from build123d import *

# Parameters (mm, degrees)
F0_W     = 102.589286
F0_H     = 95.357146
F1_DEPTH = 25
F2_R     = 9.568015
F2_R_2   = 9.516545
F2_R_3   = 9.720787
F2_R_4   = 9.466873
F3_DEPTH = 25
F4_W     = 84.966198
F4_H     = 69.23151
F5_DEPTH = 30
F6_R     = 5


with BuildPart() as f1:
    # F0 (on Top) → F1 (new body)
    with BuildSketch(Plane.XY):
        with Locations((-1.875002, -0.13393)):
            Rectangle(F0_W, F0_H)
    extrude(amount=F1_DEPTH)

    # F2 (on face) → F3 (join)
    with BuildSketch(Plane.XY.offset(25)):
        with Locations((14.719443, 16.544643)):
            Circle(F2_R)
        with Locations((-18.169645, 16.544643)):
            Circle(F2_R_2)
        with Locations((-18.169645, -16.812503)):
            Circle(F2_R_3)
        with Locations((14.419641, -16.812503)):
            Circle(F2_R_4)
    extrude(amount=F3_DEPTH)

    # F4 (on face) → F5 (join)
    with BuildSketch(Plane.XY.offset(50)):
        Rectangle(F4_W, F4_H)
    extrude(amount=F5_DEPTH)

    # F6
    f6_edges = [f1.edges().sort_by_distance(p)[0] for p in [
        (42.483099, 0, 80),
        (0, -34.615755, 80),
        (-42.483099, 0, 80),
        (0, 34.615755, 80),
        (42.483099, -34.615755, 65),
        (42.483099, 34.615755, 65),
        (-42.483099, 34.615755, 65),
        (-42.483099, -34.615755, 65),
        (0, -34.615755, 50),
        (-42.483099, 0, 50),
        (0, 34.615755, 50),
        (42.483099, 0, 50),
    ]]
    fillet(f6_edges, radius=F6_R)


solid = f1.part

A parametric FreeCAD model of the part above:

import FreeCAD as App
import Part
import Sketcher

V = App.Vector
Q = App.Units.Quantity


def edges_at(feature, points):
    """Names of the edges that pass closest to the given points."""
    edges = feature.Shape.Edges
    near = lambda p: min(range(len(edges)), key=lambda i: edges[i].distToShape(Part.Vertex(*p))[0])
    return sorted({f"Edge{near(p) + 1}" for p in points})

doc = App.newDocument("Part")
params = doc.addObject("Spreadsheet::Sheet", "Params")
for row, (alias, value) in enumerate([
    ("pad1_length", "25 mm"),
    ("pad2_length", "25 mm"),
    ("pad3_length", "30 mm"),
    ("fillet_radius", "5 mm"),
], start=1):
    params.set(f"A{row}", alias)
    params.set(f"B{row}", "=" + value)
    params.setAlias(f"B{row}", alias)

body = doc.addObject("PartDesign::Body", "Body")

# Sketch on XY plane
sketch1 = body.newObject("Sketcher::SketchObject", "Sketch")
sketch1.AttachmentSupport = (doc.getObject("XY_Plane"), [""])
sketch1.MapMode = "FlatFace"
sketch1.addGeometry([
    Part.LineSegment(V(-53, 48, 0), V(-53, -48, 0)),
    Part.LineSegment(V(-53, -48, 0), V(49, -48, 0)),
    Part.LineSegment(V(49, -48, 0), V(49, 48, 0)),
    Part.LineSegment(V(49, 48, 0), V(-53, 48, 0)),
], False)
sketch1.addConstraint([
    Sketcher.Constraint("Coincident", 0, 2, 1, 1),
    Sketcher.Constraint("Coincident", 1, 2, 2, 1),
    Sketcher.Constraint("Coincident", 2, 2, 3, 1),
    Sketcher.Constraint("Coincident", 3, 2, 0, 1),
    Sketcher.Constraint("Vertical", 0),
    Sketcher.Constraint("Horizontal", 1),
    Sketcher.Constraint("Vertical", 2),
    Sketcher.Constraint("Horizontal", 3),
    Sketcher.Constraint("DistanceX", 1, 1, 1, 2, Q("102.589286 mm")),
    Sketcher.Constraint("DistanceY", 0, 2, 0, 1, Q("95.357146 mm")),
    Sketcher.Constraint("DistanceX", -1, 1, 1, 2, Q("49.419641 mm")),
    Sketcher.Constraint("DistanceY", 0, 2, -1, 1, Q("47.812503 mm")),
])
pad1 = body.newObject("PartDesign::Pad", "Pad")
pad1.Profile = sketch1
pad1.setExpression("Length", "Params.pad1_length")

# Sketch on XY plane
sketch2 = body.newObject("Sketcher::SketchObject", "Sketch001")
sketch2.AttachmentSupport = (doc.getObject("XY_Plane"), [""])
sketch2.MapMode = "FlatFace"
sketch2.AttachmentOffset = App.Placement(V(0, 0, 25), App.Rotation())
sketch2.addGeometry([
    Part.Circle(V(15, 17, 0), V(0, 0, 1), 10),
    Part.Circle(V(-18, 17, 0), V(0, 0, 1), 10),
    Part.Circle(V(-18, -17, 0), V(0, 0, 1), 10),
    Part.Circle(V(14, -17, 0), V(0, 0, 1), 9),
], False)
sketch2.addConstraint([
    Sketcher.Constraint("Horizontal", 0, 3, 1, 3),
    Sketcher.Constraint("Horizontal", 2, 3, 3, 3),
    Sketcher.Constraint("Vertical", 1, 3, 2, 3),
    Sketcher.Constraint("Diameter", 0, Q("19.13603 mm")),
    Sketcher.Constraint("Diameter", 1, Q("19.03309 mm")),
    Sketcher.Constraint("Diameter", 2, Q("19.441574 mm")),
    Sketcher.Constraint("Diameter", 3, Q("18.933746 mm")),
    Sketcher.Constraint("DistanceX", 3, 3, 0, 3, Q("0.299802 mm")),
    Sketcher.Constraint("DistanceX", -1, 1, 3, 3, Q("14.419641 mm")),
    Sketcher.Constraint("DistanceY", -1, 1, 0, 3, Q("16.544643 mm")),
    Sketcher.Constraint("DistanceX", 1, 3, -1, 1, Q("18.169645 mm")),
    Sketcher.Constraint("DistanceY", 2, 3, -1, 1, Q("16.812503 mm")),
])
pad2 = body.newObject("PartDesign::Pad", "Pad001")
pad2.Profile = sketch2
pad2.setExpression("Length", "Params.pad2_length")

# Sketch on XY plane
sketch3 = body.newObject("Sketcher::SketchObject", "Sketch002")
sketch3.AttachmentSupport = (doc.getObject("XY_Plane"), [""])
sketch3.MapMode = "FlatFace"
sketch3.AttachmentOffset = App.Placement(V(0, 0, 50), App.Rotation())
sketch3.addGeometry([
    Part.LineSegment(V(-42, 35, 0), V(-42, -35, 0)),
    Part.LineSegment(V(-42, -35, 0), V(42, -35, 0)),
    Part.LineSegment(V(42, -35, 0), V(42, 35, 0)),
    Part.LineSegment(V(42, 35, 0), V(-42, 35, 0)),
], False)
sketch3.addConstraint([
    Sketcher.Constraint("Coincident", 0, 2, 1, 1),
    Sketcher.Constraint("Coincident", 1, 2, 2, 1),
    Sketcher.Constraint("Coincident", 2, 2, 3, 1),
    Sketcher.Constraint("Coincident", 3, 2, 0, 1),
    Sketcher.Constraint("Vertical", 0),
    Sketcher.Constraint("Horizontal", 1),
    Sketcher.Constraint("Vertical", 2),
    Sketcher.Constraint("Horizontal", 3),
    Sketcher.Constraint("Symmetric", 0, 2, 2, 2, -1, 1),
    Sketcher.Constraint("DistanceX", 1, 1, 1, 2, Q("84.966198 mm")),
    Sketcher.Constraint("DistanceY", 0, 2, 0, 1, Q("69.23151 mm")),
])
pad3 = body.newObject("PartDesign::Pad", "Pad002")
pad3.Profile = sketch3
pad3.setExpression("Length", "Params.pad3_length")
doc.recompute()

fillet = body.newObject("PartDesign::Fillet", "Fillet")
fillet.Base = (pad3, edges_at(pad3, [
    (42.483, 0, 80),
    (0, -34.616, 80),
    (-42.483, 0, 80),
    (0, 34.616, 80),
    (42.483, -34.616, 65),
    (42.483, 34.616, 65),
    (-42.483, 34.616, 65),
    (-42.483, -34.616, 65),
    (0, -34.616, 50),
    (-42.483, 0, 50),
    (0, 34.616, 50),
    (42.483, 0, 50),
]))
fillet.setExpression("Radius", "Params.fillet_radius")

doc.recompute()
